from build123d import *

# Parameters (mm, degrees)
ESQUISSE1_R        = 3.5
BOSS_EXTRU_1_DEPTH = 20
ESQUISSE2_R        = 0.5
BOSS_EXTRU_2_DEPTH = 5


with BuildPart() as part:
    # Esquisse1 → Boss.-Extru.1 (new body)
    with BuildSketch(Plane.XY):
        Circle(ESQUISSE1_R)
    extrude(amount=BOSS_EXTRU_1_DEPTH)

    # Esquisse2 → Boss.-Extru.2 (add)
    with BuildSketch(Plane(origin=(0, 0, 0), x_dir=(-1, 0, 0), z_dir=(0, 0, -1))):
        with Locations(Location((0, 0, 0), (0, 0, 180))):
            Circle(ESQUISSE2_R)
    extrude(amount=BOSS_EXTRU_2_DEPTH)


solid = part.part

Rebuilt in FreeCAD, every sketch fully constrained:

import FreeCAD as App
import Part
import Sketcher

V = App.Vector

doc = App.newDocument("Part")
params = doc.addObject("Spreadsheet::Sheet", "Params")
for row, (alias, value) in enumerate([
    ("sketch1_diameter", "7 mm"),
    ("pad1_length", "20 mm"),
    ("sketch2_diameter", "1 mm"),
    ("pad2_length", "5 mm"),
], start=1):
    params.set(f"A{row}", alias)
    params.set(f"B{row}", "=" + value)
    params.setAlias(f"B{row}", alias)

body = doc.addObject("PartDesign::Body", "Body")

# Sketch on XY plane
sketch1 = body.newObject("Sketcher::SketchObject", "Sketch")
sketch1.AttachmentSupport = (doc.getObject("XY_Plane"), [""])
sketch1.MapMode = "FlatFace"
sketch1.addGeometry(Part.Circle(V(0, 0, 0), V(0, 0, 1), 3.5), False)
sketch1.addConstraint(Sketcher.Constraint("Coincident", 0, 3, -1, 1))
sketch1.addConstraint(Sketcher.Constraint("Diameter", 0, 7.0))
sketch1.setExpression("Constraints[1]", "Params.sketch1_diameter")
pad1 = body.newObject("PartDesign::Pad", "Pad")
pad1.Profile = sketch1
pad1.setExpression("Length", "Params.pad1_length")

# Sketch on XY plane
sketch2 = body.newObject("Sketcher::SketchObject", "Sketch001")
sketch2.AttachmentSupport = (doc.getObject("XY_Plane"), [""])
sketch2.MapMode = "FlatFace"
sketch2.addGeometry(Part.Circle(V(0, 0, 0), V(0, 0, 1), 0.5), False)
sketch2.addConstraint(Sketcher.Constraint("Coincident", 0, 3, -1, 1))
sketch2.addConstraint(Sketcher.Constraint("Diameter", 0, 1.0))
sketch2.setExpression("Constraints[1]", "Params.sketch2_diameter")
pad2 = body.newObject("PartDesign::Pad", "Pad001")
pad2.Profile = sketch2
pad2.setExpression("Length", "Params.pad2_length")
pad2.Reversed = True

doc.recompute()
